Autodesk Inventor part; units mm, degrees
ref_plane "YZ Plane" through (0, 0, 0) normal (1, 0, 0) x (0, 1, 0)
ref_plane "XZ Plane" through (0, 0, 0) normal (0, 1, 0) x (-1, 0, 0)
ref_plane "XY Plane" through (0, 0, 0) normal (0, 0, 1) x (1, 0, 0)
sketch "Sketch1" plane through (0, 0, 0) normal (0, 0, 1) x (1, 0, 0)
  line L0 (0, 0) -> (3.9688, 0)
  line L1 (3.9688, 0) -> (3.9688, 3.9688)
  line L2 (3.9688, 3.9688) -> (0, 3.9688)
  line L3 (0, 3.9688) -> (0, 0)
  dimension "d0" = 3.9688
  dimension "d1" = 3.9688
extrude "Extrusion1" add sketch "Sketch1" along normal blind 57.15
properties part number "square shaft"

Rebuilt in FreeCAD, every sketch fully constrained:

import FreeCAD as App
import Part
import Sketcher
Q = App.Units.Quantity


def add_polygon(sketch, points):
    """Adds a closed chain of lines whose ends are joined by coincident constraints."""
    first, n = sketch.GeometryCount, len(points)
    for a, b in zip(points, points[1:] + points[:1]):
        sketch.addGeometry(Part.LineSegment(App.Vector(*a, 0), App.Vector(*b, 0)), False)
    for i in range(n):
        sketch.addConstraint(Sketcher.Constraint("Coincident", first + i, 2, first + (i + 1) % n, 1))

doc = App.newDocument("Part")
params = doc.addObject("Spreadsheet::Sheet", "Params")
for row, (alias, value) in enumerate([
    ("sketch1_width", "0.156252 in"),
    ("pad1_length", "2.25 in"),
], start=1):
    params.set(f"A{row}", alias)
    params.set(f"B{row}", "=" + value)
    params.setAlias(f"B{row}", alias)

body = doc.addObject("PartDesign::Body", "Body")

# Sketch on XY plane
sketch1 = doc.addObject("Sketcher::SketchObject", "Sketch")
body.addObject(sketch1)
sketch1.AttachmentSupport = (doc.XY_Plane, [""])
sketch1.MapMode = "FlatFace"
add_polygon(sketch1, [(0, 4), (0, 0), (4, 0), (4, 4)])  # lines 0-3
sketch1.addConstraint(Sketcher.Constraint("Vertical", 0))
sketch1.addConstraint(Sketcher.Constraint("Horizontal", 1))
sketch1.addConstraint(Sketcher.Constraint("Vertical", 2))
sketch1.addConstraint(Sketcher.Constraint("Horizontal", 3))
sketch1.addConstraint(Sketcher.Constraint("Coincident", 0, 2, -1, 1))
sketch1.addConstraint(Sketcher.Constraint("Equal", 3, 0))
sketch1.addConstraint(Sketcher.Constraint("DistanceX", 1, 1, 1, 2, Q("0.156252 in")))
sketch1.setExpression("Constraints[10]", "Params.sketch1_width")
pad1 = doc.addObject("PartDesign::Pad", "Pad")
body.addObject(pad1)
pad1.Profile = sketch1
pad1.setExpression("Length", "Params.pad1_length")

doc.recompute()
